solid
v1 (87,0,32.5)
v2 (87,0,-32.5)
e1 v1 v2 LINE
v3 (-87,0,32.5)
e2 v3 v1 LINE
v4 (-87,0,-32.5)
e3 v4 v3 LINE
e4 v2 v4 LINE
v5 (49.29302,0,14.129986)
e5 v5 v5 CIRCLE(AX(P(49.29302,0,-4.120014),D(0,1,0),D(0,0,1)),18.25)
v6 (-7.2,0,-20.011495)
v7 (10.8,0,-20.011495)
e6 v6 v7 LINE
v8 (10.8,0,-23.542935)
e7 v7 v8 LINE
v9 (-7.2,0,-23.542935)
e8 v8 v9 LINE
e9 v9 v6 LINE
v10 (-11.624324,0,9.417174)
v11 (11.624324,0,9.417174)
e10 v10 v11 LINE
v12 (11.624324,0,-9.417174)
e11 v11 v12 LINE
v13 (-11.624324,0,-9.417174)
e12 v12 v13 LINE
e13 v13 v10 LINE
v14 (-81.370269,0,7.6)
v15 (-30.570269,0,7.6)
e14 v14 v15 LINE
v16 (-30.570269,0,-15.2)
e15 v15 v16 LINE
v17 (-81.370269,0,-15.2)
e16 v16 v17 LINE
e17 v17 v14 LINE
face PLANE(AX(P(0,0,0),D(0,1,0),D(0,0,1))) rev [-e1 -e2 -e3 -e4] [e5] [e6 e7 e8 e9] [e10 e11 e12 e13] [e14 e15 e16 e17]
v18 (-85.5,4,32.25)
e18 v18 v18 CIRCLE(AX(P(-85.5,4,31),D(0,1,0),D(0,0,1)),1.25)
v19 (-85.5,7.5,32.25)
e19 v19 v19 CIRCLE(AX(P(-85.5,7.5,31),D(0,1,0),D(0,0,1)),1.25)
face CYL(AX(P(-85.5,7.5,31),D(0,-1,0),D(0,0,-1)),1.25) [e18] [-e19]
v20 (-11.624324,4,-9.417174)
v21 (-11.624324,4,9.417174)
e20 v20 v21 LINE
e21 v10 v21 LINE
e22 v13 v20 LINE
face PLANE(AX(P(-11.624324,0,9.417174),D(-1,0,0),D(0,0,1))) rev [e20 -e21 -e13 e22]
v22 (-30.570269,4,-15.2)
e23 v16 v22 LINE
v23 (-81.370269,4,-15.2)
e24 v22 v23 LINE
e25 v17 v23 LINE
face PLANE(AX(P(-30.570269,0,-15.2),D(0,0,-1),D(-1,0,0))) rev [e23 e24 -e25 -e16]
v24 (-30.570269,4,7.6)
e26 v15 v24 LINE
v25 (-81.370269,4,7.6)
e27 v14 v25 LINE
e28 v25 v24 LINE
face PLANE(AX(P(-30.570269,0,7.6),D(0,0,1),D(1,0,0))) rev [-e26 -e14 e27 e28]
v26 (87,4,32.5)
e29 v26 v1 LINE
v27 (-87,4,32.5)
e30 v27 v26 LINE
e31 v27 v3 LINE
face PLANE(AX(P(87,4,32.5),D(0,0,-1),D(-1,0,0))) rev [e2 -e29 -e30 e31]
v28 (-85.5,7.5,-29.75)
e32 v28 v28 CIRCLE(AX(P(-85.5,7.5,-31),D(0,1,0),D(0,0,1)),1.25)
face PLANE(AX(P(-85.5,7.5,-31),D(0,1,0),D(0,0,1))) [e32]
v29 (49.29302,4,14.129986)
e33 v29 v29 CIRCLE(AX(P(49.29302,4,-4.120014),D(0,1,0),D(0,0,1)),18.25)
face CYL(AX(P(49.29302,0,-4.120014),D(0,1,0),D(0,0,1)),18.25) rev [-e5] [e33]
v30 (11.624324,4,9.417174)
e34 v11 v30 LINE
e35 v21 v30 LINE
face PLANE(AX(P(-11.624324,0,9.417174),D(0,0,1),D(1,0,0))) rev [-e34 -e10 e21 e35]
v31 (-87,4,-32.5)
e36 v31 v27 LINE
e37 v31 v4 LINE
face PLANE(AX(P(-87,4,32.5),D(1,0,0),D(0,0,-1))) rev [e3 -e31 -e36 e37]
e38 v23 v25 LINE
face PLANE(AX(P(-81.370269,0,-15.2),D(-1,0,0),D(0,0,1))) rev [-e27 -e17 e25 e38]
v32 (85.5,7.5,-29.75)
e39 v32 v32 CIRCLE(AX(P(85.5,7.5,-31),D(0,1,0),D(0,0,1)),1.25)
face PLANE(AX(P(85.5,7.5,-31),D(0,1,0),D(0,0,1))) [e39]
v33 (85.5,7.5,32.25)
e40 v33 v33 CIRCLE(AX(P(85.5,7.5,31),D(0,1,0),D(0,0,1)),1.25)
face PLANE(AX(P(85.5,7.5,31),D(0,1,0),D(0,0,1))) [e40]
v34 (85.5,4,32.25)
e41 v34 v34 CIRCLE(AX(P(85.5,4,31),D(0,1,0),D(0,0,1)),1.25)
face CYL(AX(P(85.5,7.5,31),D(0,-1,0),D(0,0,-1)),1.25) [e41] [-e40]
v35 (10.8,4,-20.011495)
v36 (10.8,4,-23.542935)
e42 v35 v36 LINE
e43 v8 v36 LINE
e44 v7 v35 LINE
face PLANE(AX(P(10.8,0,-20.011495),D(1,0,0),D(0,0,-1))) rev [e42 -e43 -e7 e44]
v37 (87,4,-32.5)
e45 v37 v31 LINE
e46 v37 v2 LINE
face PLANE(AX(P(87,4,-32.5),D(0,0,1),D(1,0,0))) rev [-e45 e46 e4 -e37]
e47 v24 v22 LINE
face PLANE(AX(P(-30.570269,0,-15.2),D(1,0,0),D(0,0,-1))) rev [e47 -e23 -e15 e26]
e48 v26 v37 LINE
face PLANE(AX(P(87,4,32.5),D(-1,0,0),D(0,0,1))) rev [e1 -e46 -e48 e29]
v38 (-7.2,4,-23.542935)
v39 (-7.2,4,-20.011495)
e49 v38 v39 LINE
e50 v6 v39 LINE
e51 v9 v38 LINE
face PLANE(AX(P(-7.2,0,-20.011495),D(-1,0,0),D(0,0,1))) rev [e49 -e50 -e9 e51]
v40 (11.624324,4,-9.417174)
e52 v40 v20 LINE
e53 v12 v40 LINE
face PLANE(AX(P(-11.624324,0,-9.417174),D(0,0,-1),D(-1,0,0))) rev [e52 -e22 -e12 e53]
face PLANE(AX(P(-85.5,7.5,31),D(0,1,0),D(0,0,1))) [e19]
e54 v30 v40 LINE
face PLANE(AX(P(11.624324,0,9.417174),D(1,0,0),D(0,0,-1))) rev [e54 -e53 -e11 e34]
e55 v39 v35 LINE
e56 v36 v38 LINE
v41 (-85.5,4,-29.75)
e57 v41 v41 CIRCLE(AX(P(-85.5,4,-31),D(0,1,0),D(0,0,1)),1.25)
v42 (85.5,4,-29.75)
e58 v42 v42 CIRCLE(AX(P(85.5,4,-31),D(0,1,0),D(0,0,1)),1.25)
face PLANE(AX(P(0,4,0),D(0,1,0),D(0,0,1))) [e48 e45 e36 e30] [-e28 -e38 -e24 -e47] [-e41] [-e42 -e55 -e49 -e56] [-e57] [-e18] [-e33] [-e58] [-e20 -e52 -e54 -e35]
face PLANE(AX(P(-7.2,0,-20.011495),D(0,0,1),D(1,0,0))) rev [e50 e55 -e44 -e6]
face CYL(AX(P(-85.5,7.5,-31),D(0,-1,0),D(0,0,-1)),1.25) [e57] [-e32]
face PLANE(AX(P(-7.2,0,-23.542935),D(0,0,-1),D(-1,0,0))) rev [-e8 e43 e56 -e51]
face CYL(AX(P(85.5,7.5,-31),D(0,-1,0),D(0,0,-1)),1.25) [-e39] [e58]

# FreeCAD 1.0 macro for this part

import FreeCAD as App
import Part
import Sketcher
from FreeCAD import Vector

doc = App.newDocument("Part")
body = doc.addObject("PartDesign::Body", "Body")

sketch1 = body.newObject("Sketcher::SketchObject", "Sketch")
sketch1.AttachmentSupport = (doc.getObject("XZ_Plane"), [""])
sketch1.MapMode = "FlatFace"
sketch1.addGeometry([
    Part.LineSegment(Vector(-87, -32, 0), Vector(-87, 32, 0)),
    Part.LineSegment(Vector(-87, 32, 0), Vector(87, 32, 0)),
    Part.LineSegment(Vector(87, 32, 0), Vector(87, -32, 0)),
    Part.LineSegment(Vector(87, -32, 0), Vector(-87, -32, 0)),
], False)
sketch1.addConstraint([
    Sketcher.Constraint("Coincident", 0, 2, 1, 1),
    Sketcher.Constraint("Coincident", 1, 2, 2, 1),
    Sketcher.Constraint("Coincident", 2, 2, 3, 1),
    Sketcher.Constraint("Coincident", 3, 2, 0, 1),
    Sketcher.Constraint("Vertical", 0),
    Sketcher.Constraint("Horizontal", 1),
    Sketcher.Constraint("Vertical", 2),
    Sketcher.Constraint("Horizontal", 3),
    Sketcher.Constraint("Symmetric", 0, 2, 2, 2, -1, 1),
    Sketcher.Constraint("DistanceX", 1, 1, 1, 2, 174.0),
    Sketcher.Constraint("DistanceY", 0, 1, 0, 2, 65.0),
])
pad1 = body.newObject("PartDesign::Pad", "Pad")
pad1.Profile = sketch1
pad1.Length = 4
pad1.Reversed = True

sketch2 = body.newObject("Sketcher::SketchObject", "Sketch001")
sketch2.AttachmentSupport = (doc.getObject("XZ_Plane"), [""])
sketch2.MapMode = "FlatFace"
sketch2.AttachmentOffset = App.Placement(Vector(0, 0, -4), App.Rotation())
sketch2.addGeometry(Part.Circle(Vector(49, -4, 0), Vector(0, 0, 1), 18), False)
sketch2.addConstraint([
    Sketcher.Constraint("Diameter", 0, 36.5),
    Sketcher.Constraint("DistanceX", -1, 1, 0, 3, 49.29302),
    Sketcher.Constraint("DistanceY", 0, 3, -1, 1, 4.120014),
])
pocket1 = body.newObject("PartDesign::Pocket", "Pocket")
pocket1.Profile = sketch2
pocket1.Length = 4
pocket1.Reversed = True

sketch3 = body.newObject("Sketcher::SketchObject", "Sketch002")
sketch3.AttachmentSupport = (doc.getObject("XZ_Plane"), [""])
sketch3.MapMode = "FlatFace"
sketch3.AttachmentOffset = App.Placement(Vector(0, 0, -4), App.Rotation())
sketch3.addGeometry([
    Part.LineSegment(Vector(-81, -15, 0), Vector(-81, 8, 0)),
    Part.LineSegment(Vector(-81, 8, 0), Vector(-31, 8, 0)),
    Part.LineSegment(Vector(-31, 8, 0), Vector(-31, -15, 0)),
    Part.LineSegment(Vector(-31, -15, 0), Vector(-81, -15, 0)),
], False)
sketch3.addConstraint([
    Sketcher.Constraint("Coincident", 0, 2, 1, 1),
    Sketcher.Constraint("Coincident", 1, 2, 2, 1),
    Sketcher.Constraint("Coincident", 2, 2, 3, 1),
    Sketcher.Constraint("Coincident", 3, 2, 0, 1),
    Sketcher.Constraint("Vertical", 0),
    Sketcher.Constraint("Horizontal", 1),
    Sketcher.Constraint("Vertical", 2),
    Sketcher.Constraint("Horizontal", 3),
    Sketcher.Constraint("DistanceX", 1, 1, 1, 2, 50.8),
    Sketcher.Constraint("DistanceY", 0, 1, 0, 2, 22.8),
    Sketcher.Constraint("DistanceY", -1, 1, 0, 2, 7.6),
    Sketcher.Constraint("DistanceX", 0, 2, -1, 1, 81.370269),
])
pocket2 = body.newObject("PartDesign::Pocket", "Pocket001")
pocket2.Profile = sketch3
pocket2.Length = 4
pocket2.Reversed = True

sketch4 = body.newObject("Sketcher::SketchObject", "Sketch003")
sketch4.AttachmentSupport = (doc.getObject("XZ_Plane"), [""])
sketch4.MapMode = "FlatFace"
sketch4.AttachmentOffset = App.Placement(Vector(0, 0, -4), App.Rotation())
sketch4.addGeometry([
    Part.LineSegment(Vector(-7.2, -23.5, 0), Vector(-7.2, -20, 0)),
    Part.LineSegment(Vector(-7.2, -20, 0), Vector(10.8, -20, 0)),
    Part.LineSegment(Vector(10.8, -20, 0), Vector(10.8, -23.5, 0)),
    Part.LineSegment(Vector(10.8, -23.5, 0), Vector(-7.2, -23.5, 0)),
], False)
sketch4.addConstraint([
    Sketcher.Constraint("Coincident", 0, 2, 1, 1),
    Sketcher.Constraint("Coincident", 1, 2, 2, 1),
    Sketcher.Constraint("Coincident", 2, 2, 3, 1),
    Sketcher.Constraint("Coincident", 3, 2, 0, 1),
    Sketcher.Constraint("Vertical", 0),
    Sketcher.Constraint("Horizontal", 1),
    Sketcher.Constraint("Vertical", 2),
    Sketcher.Constraint("Horizontal", 3),
    Sketcher.Constraint("DistanceX", 1, 1, 1, 2, 18.0),
    Sketcher.Constraint("DistanceX", 0, 2, -1, 1, 7.2),
    Sketcher.Constraint("DistanceY", 0, 1, 0, 2, 3.53144),
    Sketcher.Constraint("DistanceY", 0, 2, -1, 1, 20.011495),
])
pocket3 = body.newObject("PartDesign::Pocket", "Pocket002")
pocket3.Profile = sketch4
pocket3.Length = 4
pocket3.Reversed = True

sketch5 = body.newObject("Sketcher::SketchObject", "Sketch004")
sketch5.AttachmentSupport = (doc.getObject("XZ_Plane"), [""])
sketch5.MapMode = "FlatFace"
sketch5.AttachmentOffset = App.Placement(Vector(0, 0, -4), App.Rotation())
sketch5.addGeometry([
    Part.LineSegment(Vector(-12, -9, 0), Vector(-12, 9, 0)),
    Part.LineSegment(Vector(-12, 9, 0), Vector(12, 9, 0)),
    Part.LineSegment(Vector(12, 9, 0), Vector(12, -9, 0)),
    Part.LineSegment(Vector(12, -9, 0), Vector(-12, -9, 0)),
], False)
sketch5.addConstraint([
    Sketcher.Constraint("Coincident", 0, 2, 1, 1),
    Sketcher.Constraint("Coincident", 1, 2, 2, 1),
    Sketcher.Constraint("Coincident", 2, 2, 3, 1),
    Sketcher.Constraint("Coincident", 3, 2, 0, 1),
    Sketcher.Constraint("Vertical", 0),
    Sketcher.Constraint("Horizontal", 1),
    Sketcher.Constraint("Vertical", 2),
    Sketcher.Constraint("Horizontal", 3),
    Sketcher.Constraint("Symmetric", 0, 2, 2, 2, -1, 1),
    Sketcher.Constraint("DistanceX", 1, 1, 1, 2, 23.248648),
    Sketcher.Constraint("DistanceY", 0, 1, 0, 2, 18.834348),
])
pocket4 = body.newObject("PartDesign::Pocket", "Pocket003")
pocket4.Profile = sketch5
pocket4.Length = 4
pocket4.Reversed = True

sketch6 = body.newObject("Sketcher::SketchObject", "Sketch005")
sketch6.AttachmentSupport = (doc.getObject("XZ_Plane"), [""])
sketch6.MapMode = "FlatFace"
sketch6.AttachmentOffset = App.Placement(Vector(0, 0, -4), App.Rotation())
sketch6.addGeometry([
    Part.Circle(Vector(-85.5, -31, 0), Vector(0, 0, 1), 1.2),
    Part.Circle(Vector(-85.5, 31, 0), Vector(0, 0, 1), 1.2),
], False)
sketch6.addConstraint([
    Sketcher.Constraint("Equal", 0, 1),
    Sketcher.Constraint("Symmetric", 0, 3, 1, 3, -1),
    Sketcher.Constraint("Diameter", 0, 2.5),
    Sketcher.Constraint("DistanceY", 0, 3, -1, 1, 31.0),
    Sketcher.Constraint("DistanceX", 0, 3, -1, 1, 85.5),
])
pad2 = body.newObject("PartDesign::Pad", "Pad001")
pad2.Profile = sketch6
pad2.Length = 3.5
pad2.Reversed = True

sketch7 = body.newObject("Sketcher::SketchObject", "Sketch006")
sketch7.AttachmentSupport = (doc.getObject("XZ_Plane"), [""])
sketch7.MapMode = "FlatFace"
sketch7.AttachmentOffset = App.Placement(Vector(0, 0, -4), App.Rotation())
sketch7.addGeometry([
    Part.Circle(Vector(85.5, -31, 0), Vector(0, 0, 1), 1.2),
    Part.Circle(Vector(85.5, 31, 0), Vector(0, 0, 1), 1.2),
], False)
sketch7.addConstraint([
    Sketcher.Constraint("Equal", 0, 1),
    Sketcher.Constraint("Symmetric", 0, 3, 1, 3, -1),
    Sketcher.Constraint("Diameter", 0, 2.5),
    Sketcher.Constraint("DistanceY", 0, 3, -1, 1, 31.0),
    Sketcher.Constraint("DistanceX", -1, 1, 0, 3, 85.5),
])
pad3 = body.newObject("PartDesign::Pad", "Pad002")
pad3.Profile = sketch7
pad3.Length = 3.5
pad3.Reversed = True

doc.recompute()
